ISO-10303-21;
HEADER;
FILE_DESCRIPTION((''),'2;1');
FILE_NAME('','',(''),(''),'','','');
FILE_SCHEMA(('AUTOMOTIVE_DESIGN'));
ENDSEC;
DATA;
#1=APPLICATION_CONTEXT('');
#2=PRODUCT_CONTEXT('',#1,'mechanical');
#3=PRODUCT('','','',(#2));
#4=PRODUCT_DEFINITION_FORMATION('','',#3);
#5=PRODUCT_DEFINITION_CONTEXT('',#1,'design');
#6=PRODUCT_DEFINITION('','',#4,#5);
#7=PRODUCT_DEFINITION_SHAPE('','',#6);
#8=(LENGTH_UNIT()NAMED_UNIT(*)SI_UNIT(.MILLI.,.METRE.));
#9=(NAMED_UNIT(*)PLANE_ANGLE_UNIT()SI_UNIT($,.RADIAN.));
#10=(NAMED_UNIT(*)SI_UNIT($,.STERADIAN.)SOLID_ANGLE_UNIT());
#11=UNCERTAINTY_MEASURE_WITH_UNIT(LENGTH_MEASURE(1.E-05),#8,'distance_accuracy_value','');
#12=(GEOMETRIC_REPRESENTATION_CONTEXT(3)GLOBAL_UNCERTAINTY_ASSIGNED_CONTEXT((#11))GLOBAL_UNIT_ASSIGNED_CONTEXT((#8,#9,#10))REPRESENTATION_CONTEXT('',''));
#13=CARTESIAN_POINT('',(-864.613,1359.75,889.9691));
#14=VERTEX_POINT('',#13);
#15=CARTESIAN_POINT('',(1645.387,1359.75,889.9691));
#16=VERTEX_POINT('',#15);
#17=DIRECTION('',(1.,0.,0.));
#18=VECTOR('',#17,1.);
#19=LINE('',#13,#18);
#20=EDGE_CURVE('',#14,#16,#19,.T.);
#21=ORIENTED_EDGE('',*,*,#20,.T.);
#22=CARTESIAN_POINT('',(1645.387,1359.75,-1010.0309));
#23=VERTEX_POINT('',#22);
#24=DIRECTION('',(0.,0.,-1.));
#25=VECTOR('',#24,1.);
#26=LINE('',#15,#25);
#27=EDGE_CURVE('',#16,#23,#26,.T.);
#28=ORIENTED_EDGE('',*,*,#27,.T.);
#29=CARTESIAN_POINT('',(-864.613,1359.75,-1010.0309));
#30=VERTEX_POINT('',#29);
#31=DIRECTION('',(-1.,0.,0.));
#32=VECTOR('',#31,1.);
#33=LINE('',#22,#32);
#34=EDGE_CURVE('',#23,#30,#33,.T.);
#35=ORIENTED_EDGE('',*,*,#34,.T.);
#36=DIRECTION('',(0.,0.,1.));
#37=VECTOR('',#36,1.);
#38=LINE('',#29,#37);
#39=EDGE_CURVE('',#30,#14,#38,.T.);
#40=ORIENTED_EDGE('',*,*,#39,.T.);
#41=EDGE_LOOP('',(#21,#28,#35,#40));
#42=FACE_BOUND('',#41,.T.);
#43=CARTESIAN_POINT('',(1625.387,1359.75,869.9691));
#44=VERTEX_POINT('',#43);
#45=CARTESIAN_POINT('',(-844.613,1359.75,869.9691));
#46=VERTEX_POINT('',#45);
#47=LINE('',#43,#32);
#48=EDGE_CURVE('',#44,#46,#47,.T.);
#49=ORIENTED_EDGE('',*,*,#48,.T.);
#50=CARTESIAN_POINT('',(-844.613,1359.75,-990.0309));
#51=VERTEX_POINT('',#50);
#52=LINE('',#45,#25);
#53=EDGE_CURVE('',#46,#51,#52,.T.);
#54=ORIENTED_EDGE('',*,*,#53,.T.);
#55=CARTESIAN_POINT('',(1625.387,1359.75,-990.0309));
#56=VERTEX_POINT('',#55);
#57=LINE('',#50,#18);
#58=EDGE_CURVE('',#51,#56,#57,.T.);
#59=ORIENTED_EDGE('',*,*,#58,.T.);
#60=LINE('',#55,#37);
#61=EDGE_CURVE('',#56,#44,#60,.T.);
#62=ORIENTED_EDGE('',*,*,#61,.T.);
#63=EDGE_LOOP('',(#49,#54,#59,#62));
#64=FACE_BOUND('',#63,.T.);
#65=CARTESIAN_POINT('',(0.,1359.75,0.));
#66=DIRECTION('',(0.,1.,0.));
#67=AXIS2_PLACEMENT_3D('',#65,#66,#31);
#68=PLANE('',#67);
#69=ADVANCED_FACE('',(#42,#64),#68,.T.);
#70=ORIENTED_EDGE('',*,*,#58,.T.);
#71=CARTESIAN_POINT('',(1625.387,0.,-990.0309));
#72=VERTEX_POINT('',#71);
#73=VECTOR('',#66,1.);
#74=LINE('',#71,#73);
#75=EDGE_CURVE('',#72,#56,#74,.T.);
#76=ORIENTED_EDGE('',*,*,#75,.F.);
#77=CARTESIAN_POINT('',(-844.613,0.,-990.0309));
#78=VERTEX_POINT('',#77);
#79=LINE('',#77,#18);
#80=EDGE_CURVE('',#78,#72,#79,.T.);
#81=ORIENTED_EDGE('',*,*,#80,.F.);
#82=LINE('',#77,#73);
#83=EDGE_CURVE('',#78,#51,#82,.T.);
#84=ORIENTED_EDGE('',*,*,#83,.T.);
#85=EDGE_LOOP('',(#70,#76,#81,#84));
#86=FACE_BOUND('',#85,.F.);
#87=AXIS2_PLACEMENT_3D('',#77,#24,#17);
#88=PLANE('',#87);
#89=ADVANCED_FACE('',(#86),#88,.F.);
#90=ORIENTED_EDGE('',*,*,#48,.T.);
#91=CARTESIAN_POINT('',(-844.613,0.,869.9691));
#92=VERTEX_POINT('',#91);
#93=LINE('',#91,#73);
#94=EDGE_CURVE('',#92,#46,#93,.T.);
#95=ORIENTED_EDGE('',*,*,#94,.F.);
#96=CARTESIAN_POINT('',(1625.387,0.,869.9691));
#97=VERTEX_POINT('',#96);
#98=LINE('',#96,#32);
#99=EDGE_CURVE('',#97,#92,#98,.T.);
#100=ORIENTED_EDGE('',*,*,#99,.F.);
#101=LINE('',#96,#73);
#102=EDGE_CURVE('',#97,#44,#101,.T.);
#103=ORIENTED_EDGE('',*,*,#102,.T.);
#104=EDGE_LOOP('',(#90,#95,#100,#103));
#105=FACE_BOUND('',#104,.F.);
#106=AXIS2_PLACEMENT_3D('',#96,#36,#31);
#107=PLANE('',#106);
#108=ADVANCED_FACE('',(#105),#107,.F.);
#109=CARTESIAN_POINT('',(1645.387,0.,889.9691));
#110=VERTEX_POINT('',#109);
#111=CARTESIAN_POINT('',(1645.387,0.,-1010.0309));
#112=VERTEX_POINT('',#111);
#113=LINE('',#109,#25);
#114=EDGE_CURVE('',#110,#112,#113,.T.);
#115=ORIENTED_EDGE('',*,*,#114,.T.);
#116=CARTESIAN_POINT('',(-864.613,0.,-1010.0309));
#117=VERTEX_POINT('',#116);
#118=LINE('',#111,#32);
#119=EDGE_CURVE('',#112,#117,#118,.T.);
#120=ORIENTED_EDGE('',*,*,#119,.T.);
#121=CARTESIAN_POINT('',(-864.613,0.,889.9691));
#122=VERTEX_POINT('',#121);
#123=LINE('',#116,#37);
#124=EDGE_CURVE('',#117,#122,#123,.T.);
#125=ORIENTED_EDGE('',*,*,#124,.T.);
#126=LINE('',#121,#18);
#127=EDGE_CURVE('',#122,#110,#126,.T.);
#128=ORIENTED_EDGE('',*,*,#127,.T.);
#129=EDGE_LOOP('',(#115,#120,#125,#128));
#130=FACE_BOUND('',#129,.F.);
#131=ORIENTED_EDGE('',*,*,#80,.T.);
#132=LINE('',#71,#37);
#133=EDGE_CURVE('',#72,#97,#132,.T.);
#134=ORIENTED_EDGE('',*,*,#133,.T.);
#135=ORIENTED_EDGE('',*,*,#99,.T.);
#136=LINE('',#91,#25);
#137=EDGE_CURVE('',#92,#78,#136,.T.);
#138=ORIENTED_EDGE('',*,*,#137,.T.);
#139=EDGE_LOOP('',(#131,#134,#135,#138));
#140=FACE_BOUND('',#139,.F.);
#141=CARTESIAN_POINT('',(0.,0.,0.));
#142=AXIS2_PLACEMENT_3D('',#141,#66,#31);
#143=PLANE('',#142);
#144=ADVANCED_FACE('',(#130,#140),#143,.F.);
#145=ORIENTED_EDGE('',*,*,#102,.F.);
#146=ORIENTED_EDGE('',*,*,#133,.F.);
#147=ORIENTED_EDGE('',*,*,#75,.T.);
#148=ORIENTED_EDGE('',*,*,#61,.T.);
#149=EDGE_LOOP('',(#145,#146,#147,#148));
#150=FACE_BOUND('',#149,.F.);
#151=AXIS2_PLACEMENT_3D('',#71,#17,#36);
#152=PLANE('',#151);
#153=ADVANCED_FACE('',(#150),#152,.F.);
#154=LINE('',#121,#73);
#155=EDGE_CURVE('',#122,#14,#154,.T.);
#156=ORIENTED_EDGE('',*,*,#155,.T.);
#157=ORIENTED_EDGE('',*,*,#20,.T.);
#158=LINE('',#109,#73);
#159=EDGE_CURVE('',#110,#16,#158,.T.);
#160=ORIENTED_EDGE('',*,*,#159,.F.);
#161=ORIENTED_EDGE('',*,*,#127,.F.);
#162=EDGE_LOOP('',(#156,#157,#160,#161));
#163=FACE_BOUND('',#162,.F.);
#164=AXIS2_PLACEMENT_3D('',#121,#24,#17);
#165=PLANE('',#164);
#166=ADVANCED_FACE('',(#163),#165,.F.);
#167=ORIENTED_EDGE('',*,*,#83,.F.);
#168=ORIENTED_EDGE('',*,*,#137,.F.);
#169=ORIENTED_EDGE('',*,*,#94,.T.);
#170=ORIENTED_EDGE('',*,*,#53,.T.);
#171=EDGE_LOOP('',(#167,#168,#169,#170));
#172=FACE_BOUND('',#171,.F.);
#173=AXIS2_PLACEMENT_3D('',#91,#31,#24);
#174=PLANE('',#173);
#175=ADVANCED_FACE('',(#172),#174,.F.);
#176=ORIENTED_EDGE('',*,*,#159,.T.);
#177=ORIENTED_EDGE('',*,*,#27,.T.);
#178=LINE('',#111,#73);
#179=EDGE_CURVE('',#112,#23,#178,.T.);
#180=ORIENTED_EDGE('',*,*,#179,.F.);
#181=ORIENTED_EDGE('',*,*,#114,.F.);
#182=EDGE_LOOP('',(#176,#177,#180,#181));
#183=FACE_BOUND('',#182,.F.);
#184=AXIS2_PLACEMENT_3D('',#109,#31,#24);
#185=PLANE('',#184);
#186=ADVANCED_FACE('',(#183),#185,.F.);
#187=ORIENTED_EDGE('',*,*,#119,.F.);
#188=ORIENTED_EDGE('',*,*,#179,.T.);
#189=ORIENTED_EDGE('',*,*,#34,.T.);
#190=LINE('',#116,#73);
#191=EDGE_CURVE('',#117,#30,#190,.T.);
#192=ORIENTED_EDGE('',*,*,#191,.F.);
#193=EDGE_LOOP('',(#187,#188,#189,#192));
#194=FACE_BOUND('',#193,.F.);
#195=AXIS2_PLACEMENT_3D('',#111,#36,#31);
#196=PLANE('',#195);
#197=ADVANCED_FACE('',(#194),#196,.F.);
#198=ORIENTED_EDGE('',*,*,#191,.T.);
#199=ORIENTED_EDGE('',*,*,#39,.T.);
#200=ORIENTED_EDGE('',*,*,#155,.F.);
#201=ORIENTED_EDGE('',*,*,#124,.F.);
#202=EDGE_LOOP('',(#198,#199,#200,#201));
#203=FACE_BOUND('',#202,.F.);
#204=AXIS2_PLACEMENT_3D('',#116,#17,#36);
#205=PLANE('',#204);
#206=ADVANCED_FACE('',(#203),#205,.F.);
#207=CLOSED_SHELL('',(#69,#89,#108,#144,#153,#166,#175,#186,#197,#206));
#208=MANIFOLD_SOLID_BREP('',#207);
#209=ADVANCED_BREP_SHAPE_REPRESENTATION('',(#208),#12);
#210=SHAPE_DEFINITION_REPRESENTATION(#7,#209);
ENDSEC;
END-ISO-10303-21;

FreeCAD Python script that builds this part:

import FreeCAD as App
import Part
import Sketcher

doc = App.newDocument("Part")
body = doc.addObject("PartDesign::Body", "Body")

# Sketch on XZ plane
sketch1 = body.newObject("Sketcher::SketchObject", "Sketch")
sketch1.AttachmentSupport = (doc.getObject("XZ_Plane"), [""])
sketch1.MapMode = "FlatFace"
sketch1.addGeometry(Part.LineSegment(App.Vector(-865, -1010, 0), App.Vector(-865, 890, 0)), False)
sketch1.addGeometry(Part.LineSegment(App.Vector(-865, 890, 0), App.Vector(1645, 890, 0)), False)
sketch1.addGeometry(Part.LineSegment(App.Vector(1645, 890, 0), App.Vector(1645, -1010, 0)), False)
sketch1.addGeometry(Part.LineSegment(App.Vector(1645, -1010, 0), App.Vector(-865, -1010, 0)), False)
sketch1.addGeometry(Part.LineSegment(App.Vector(1625, -990, 0), App.Vector(1625, 870, 0)), False)
sketch1.addGeometry(Part.LineSegment(App.Vector(1625, 870, 0), App.Vector(-845, 870, 0)), False)
sketch1.addGeometry(Part.LineSegment(App.Vector(-845, 870, 0), App.Vector(-845, -990, 0)), False)
sketch1.addGeometry(Part.LineSegment(App.Vector(-845, -990, 0), App.Vector(1625, -990, 0)), False)
sketch1.addConstraint(Sketcher.Constraint("Coincident", 0, 2, 1, 1))
sketch1.addConstraint(Sketcher.Constraint("Coincident", 1, 2, 2, 1))
sketch1.addConstraint(Sketcher.Constraint("Coincident", 2, 2, 3, 1))
sketch1.addConstraint(Sketcher.Constraint("Coincident", 3, 2, 0, 1))
sketch1.addConstraint(Sketcher.Constraint("Coincident", 4, 2, 5, 1))
sketch1.addConstraint(Sketcher.Constraint("Coincident", 5, 2, 6, 1))
sketch1.addConstraint(Sketcher.Constraint("Coincident", 6, 2, 7, 1))
sketch1.addConstraint(Sketcher.Constraint("Coincident", 7, 2, 4, 1))
sketch1.addConstraint(Sketcher.Constraint("Vertical", 0))
sketch1.addConstraint(Sketcher.Constraint("Horizontal", 1))
sketch1.addConstraint(Sketcher.Constraint("Vertical", 2))
sketch1.addConstraint(Sketcher.Constraint("Horizontal", 3))
sketch1.addConstraint(Sketcher.Constraint("Vertical", 4))
sketch1.addConstraint(Sketcher.Constraint("Horizontal", 5))
sketch1.addConstraint(Sketcher.Constraint("Vertical", 6))
sketch1.addConstraint(Sketcher.Constraint("Horizontal", 7))
sketch1.addConstraint(Sketcher.Constraint("DistanceX", 5, 2, 5, 1, 2470.0))
sketch1.addConstraint(Sketcher.Constraint("DistanceY", 4, 1, 4, 2, 1860.0))
sketch1.addConstraint(Sketcher.Constraint("DistanceX", 4, 2, 1, 2, 20.0))
sketch1.addConstraint(Sketcher.Constraint("DistanceY", 4, 2, 1, 2, 20.0))
sketch1.addConstraint(Sketcher.Constraint("DistanceX", 0, 2, 5, 2, 20.0))
sketch1.addConstraint(Sketcher.Constraint("DistanceY", 3, 2, 6, 2, 20.0))
sketch1.addConstraint(Sketcher.Constraint("DistanceX", 0, 2, -1, 1, 864.613))
sketch1.addConstraint(Sketcher.Constraint("DistanceY", -1, 1, 0, 2, 889.969))
pad1 = body.newObject("PartDesign::Pad", "Pad")
pad1.Profile = sketch1
pad1.Length = 1359.75
pad1.Reversed = True

doc.recompute()
